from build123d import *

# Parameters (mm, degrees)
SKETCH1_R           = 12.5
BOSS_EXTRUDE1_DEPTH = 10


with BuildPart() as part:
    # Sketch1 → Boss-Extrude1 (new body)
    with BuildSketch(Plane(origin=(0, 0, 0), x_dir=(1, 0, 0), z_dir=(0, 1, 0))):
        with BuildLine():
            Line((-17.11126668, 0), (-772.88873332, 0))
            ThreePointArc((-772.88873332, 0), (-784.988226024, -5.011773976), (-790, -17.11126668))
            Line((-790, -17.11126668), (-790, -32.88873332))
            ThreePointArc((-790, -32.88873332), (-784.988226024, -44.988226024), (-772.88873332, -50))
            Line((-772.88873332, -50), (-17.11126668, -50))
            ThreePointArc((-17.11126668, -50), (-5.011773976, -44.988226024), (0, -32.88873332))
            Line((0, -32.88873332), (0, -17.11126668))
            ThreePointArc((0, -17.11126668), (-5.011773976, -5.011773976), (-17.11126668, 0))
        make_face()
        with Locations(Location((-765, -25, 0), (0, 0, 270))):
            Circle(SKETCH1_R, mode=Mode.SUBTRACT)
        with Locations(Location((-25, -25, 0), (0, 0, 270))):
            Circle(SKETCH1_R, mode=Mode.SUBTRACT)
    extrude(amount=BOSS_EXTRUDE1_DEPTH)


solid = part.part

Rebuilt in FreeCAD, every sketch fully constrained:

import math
import FreeCAD as App
import Part
import Sketcher
Q = App.Units.Quantity

doc = App.newDocument("Part")
params = doc.addObject("Spreadsheet::Sheet", "Params")
for row, (alias, value) in enumerate([
    ("sketch1_diameter", "25 mm"),
    ("pad1_length", "10 mm"),
], start=1):
    params.set(f"A{row}", alias)
    params.set(f"B{row}", "=" + value)
    params.setAlias(f"B{row}", alias)

body = doc.addObject("PartDesign::Body", "Body")

# Sketch on XZ plane
sketch1 = body.newObject("Sketcher::SketchObject", "Sketch")
sketch1.AttachmentSupport = (doc.getObject("XZ_Plane"), [""])
sketch1.MapMode = "FlatFace"
sketch1.addGeometry([
    Part.LineSegment(App.Vector(-17, 0, 0), App.Vector(-773, 0, 0)),  # 0
    Part.ArcOfCircle(Part.Circle(App.Vector(-773, 17, 0), App.Vector(0, 0, 1), 17), math.radians(180), math.radians(270)),  # 1
    Part.LineSegment(App.Vector(-790, 17, 0), App.Vector(-790, 33, 0)),  # 2
    Part.ArcOfCircle(Part.Circle(App.Vector(-773, 33, 0), App.Vector(0, 0, 1), 17), math.radians(90), math.radians(180)),  # 3
    Part.LineSegment(App.Vector(-773, 50, 0), App.Vector(-17, 50, 0)),  # 4
    Part.ArcOfCircle(Part.Circle(App.Vector(-17, 33, 0), App.Vector(0, 0, 1), 17), math.radians(0), math.radians(90)),  # 5
    Part.LineSegment(App.Vector(0, 33, 0), App.Vector(0, 17, 0)),  # 6
    Part.ArcOfCircle(Part.Circle(App.Vector(-17, 17, 0), App.Vector(0, 0, 1), 17), math.radians(-90), math.radians(0)),  # 7
    Part.Circle(App.Vector(-765, 25, 0), App.Vector(0, 0, 1), 12),  # 8
    Part.Circle(App.Vector(-25, 25, 0), App.Vector(0, 0, 1), 12),  # 9
], False)
sketch1.addConstraint([
    Sketcher.Constraint("Tangent", 0, 2, 1, 2),
    Sketcher.Constraint("Tangent", 1, 1, 2, 1),
    Sketcher.Constraint("Tangent", 2, 2, 3, 2),
    Sketcher.Constraint("Tangent", 3, 1, 4, 1),
    Sketcher.Constraint("Tangent", 4, 2, 5, 2),
    Sketcher.Constraint("Tangent", 5, 1, 6, 1),
    Sketcher.Constraint("Tangent", 6, 2, 7, 2),
    Sketcher.Constraint("Tangent", 7, 1, 0, 1),
    Sketcher.Constraint("Horizontal", 0),
    Sketcher.Constraint("Vertical", 2),
    Sketcher.Constraint("Horizontal", 4),
    Sketcher.Constraint("Vertical", 6),
    Sketcher.Constraint("Equal", 1, 3),
    Sketcher.Constraint("Equal", 3, 5),
    Sketcher.Constraint("Equal", 5, 7),
    Sketcher.Constraint("Equal", 8, 9),
    Sketcher.Constraint("PointOnObject", 0, 2, -1),
    Sketcher.Constraint("PointOnObject", 5, 1, -2),
    Sketcher.Constraint("Horizontal", 8, 3, 9, 3),
    Sketcher.Constraint("Diameter", 8, Q("25 mm")),
    Sketcher.Constraint("DistanceX", 8, 3, -1, 1, Q("765 mm")),
    Sketcher.Constraint("DistanceY", -1, 1, 8, 3, Q("25 mm")),
    Sketcher.Constraint("DistanceX", 9, 3, -1, 1, Q("25 mm")),
    Sketcher.Constraint("DistanceX", 1, 1, -1, 1, Q("790 mm")),
    Sketcher.Constraint("DistanceY", -1, 1, 3, 1, Q("50 mm")),
    Sketcher.Constraint("Radius", 1, Q("17.111267 mm")),
])
sketch1.setExpression("Constraints[19]", "Params.sketch1_diameter")
pad1 = body.newObject("PartDesign::Pad", "Pad")
pad1.Profile = sketch1
pad1.setExpression("Length", "Params.pad1_length")
pad1.Reversed = True

doc.recompute()
